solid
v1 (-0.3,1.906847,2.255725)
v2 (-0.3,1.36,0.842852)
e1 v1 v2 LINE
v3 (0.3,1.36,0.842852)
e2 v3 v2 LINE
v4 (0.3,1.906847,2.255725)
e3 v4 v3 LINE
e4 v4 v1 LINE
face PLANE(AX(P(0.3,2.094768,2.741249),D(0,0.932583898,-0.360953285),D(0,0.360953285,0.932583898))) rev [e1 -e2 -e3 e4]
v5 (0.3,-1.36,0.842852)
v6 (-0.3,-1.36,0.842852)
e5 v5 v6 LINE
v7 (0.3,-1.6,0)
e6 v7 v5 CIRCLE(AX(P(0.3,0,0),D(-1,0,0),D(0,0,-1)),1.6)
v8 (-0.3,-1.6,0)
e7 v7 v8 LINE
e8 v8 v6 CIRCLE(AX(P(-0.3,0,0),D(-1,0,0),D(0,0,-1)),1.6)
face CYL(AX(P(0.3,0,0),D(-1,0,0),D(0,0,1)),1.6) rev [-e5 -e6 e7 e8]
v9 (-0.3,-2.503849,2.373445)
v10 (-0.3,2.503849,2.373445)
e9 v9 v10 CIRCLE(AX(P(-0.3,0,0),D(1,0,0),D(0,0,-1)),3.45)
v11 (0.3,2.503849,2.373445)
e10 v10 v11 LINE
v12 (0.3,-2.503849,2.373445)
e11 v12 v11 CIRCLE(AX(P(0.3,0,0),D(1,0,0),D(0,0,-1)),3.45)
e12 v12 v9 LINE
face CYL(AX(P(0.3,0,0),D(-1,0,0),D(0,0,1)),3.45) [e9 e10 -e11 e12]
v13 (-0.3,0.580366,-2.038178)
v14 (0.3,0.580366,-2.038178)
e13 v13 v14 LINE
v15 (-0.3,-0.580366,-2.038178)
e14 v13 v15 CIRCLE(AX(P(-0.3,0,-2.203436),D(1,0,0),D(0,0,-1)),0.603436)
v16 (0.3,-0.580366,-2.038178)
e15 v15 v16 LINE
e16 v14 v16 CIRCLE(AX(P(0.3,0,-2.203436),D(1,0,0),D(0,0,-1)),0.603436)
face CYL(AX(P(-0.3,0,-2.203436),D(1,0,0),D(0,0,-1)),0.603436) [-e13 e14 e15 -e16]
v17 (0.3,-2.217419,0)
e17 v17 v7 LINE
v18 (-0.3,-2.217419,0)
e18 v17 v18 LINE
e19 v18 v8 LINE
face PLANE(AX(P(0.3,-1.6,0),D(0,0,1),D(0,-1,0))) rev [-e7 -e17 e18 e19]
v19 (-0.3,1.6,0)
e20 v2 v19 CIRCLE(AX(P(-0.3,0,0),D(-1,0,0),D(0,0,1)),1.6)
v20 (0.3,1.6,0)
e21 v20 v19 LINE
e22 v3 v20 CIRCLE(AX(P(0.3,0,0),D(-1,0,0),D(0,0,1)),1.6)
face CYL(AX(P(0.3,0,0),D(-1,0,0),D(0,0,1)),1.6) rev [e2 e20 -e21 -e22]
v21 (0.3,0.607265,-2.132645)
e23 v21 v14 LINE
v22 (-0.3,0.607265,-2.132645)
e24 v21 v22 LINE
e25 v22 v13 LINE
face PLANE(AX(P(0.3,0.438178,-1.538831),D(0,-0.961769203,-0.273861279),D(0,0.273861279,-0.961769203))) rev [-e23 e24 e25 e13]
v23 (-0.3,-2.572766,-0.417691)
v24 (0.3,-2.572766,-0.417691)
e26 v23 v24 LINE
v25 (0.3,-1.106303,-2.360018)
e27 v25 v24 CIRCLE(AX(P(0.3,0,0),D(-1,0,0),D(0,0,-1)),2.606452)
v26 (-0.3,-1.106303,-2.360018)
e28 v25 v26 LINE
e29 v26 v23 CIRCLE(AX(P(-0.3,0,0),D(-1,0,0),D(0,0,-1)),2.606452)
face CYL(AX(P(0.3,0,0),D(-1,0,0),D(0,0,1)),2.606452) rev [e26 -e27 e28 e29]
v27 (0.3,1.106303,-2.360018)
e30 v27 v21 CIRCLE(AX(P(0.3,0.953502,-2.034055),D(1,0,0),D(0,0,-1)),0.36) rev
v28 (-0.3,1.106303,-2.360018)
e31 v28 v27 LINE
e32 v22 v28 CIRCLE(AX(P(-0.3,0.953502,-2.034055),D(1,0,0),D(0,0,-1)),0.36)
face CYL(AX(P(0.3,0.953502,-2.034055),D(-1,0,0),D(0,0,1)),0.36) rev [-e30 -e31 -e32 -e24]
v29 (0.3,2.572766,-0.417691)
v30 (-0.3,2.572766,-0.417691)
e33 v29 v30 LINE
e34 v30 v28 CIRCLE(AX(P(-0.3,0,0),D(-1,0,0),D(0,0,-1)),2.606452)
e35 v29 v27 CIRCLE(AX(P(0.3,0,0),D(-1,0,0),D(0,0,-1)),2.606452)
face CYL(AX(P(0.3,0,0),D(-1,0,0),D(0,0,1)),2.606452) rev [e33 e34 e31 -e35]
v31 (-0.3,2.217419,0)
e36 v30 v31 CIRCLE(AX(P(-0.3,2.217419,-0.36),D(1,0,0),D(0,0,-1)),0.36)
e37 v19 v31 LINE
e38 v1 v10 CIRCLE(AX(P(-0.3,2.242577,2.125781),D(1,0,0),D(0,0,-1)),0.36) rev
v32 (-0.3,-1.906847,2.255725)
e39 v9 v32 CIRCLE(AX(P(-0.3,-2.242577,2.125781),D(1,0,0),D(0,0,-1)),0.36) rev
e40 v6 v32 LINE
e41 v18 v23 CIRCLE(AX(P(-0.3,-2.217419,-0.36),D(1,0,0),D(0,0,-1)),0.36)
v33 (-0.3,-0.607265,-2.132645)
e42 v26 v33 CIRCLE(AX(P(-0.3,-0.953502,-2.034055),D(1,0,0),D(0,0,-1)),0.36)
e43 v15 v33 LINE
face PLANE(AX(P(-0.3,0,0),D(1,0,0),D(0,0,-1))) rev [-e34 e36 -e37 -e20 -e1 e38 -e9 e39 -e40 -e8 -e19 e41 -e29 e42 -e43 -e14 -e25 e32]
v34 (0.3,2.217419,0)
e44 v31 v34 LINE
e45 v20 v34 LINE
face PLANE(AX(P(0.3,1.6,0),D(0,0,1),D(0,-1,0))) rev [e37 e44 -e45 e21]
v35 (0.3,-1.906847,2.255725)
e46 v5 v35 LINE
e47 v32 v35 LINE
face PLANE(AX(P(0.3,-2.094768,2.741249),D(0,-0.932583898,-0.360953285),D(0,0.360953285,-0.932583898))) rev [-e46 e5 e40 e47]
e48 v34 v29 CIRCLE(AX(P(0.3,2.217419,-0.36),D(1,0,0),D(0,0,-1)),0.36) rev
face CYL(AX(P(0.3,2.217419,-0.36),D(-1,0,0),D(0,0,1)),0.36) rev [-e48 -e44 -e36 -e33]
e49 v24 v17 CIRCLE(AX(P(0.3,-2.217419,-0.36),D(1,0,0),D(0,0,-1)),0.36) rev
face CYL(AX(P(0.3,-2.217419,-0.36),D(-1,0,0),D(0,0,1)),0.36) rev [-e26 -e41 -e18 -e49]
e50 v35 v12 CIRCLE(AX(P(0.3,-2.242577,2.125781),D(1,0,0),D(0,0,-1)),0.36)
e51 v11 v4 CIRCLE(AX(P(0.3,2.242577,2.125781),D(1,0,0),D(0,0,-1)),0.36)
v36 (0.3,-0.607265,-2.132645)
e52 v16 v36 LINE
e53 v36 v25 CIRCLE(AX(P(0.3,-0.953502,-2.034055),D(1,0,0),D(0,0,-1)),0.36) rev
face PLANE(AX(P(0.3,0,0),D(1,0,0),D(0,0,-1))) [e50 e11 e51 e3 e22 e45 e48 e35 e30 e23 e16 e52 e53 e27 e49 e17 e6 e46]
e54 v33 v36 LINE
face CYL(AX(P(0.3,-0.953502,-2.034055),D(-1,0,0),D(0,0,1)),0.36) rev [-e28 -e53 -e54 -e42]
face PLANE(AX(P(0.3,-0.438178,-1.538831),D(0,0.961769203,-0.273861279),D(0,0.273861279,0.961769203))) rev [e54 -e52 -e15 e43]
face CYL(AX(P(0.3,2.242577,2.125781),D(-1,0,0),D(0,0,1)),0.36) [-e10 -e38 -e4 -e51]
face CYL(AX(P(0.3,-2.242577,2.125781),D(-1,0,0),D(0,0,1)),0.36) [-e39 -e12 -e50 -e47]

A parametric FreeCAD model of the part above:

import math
import FreeCAD as App
import Part
import Sketcher
from FreeCAD import Vector
Q = App.Units.Quantity


def edges_at(feature, points):
    """Names of the edges that pass closest to the given points."""
    edges = feature.Shape.Edges
    near = lambda p: min(range(len(edges)), key=lambda i: edges[i].distToShape(Part.Vertex(*p))[0])
    return sorted({f"Edge{near(p) + 1}" for p in points})

doc = App.newDocument("Part")
body = doc.addObject("PartDesign::Body", "Body")

sketch1 = body.newObject("Sketcher::SketchObject", "Sketch")
sketch1.AttachmentSupport = (doc.getObject("YZ_Plane"), [""])
sketch1.MapMode = "FlatFace"
sketch1.addGeometry([
    Part.LineSegment(Vector(-1.4, 0.8, 0), Vector(-2.1, 2.7, 0)),
    Part.ArcOfCircle(Part.Circle(Vector(0, 0, 0), Vector(0, 0, 1), 3.5), math.radians(127), math.radians(413)),
    Part.LineSegment(Vector(2.1, 2.7, 0), Vector(1.4, 0.8, 0)),
    Part.ArcOfCircle(Part.Circle(Vector(0, 0, 0), Vector(0, 0, 1), 1.6), math.radians(0), math.radians(32)),
    Part.LineSegment(Vector(1.6, 0, 0), Vector(2.6, 0, 0)),
    Part.ArcOfCircle(Part.Circle(Vector(0, 0, 0), Vector(0, 0, 1), 2.6), math.radians(-74), math.radians(0)),
    Part.LineSegment(Vector(0.7, -2.5, 0), Vector(0.4, -1.5, 0)),
    Part.ArcOfCircle(Part.Circle(Vector(0, 0, 0), Vector(0, 0, 1), 1.6), math.radians(-106), math.radians(-74)),
    Part.LineSegment(Vector(-0.4, -1.5, 0), Vector(-0.7, -2.5, 0)),
    Part.ArcOfCircle(Part.Circle(Vector(0, 0, 0), Vector(0, 0, 1), 2.6), math.radians(-180), math.radians(-106)),
    Part.LineSegment(Vector(-2.6, 0, 0), Vector(-1.6, 0, 0)),
    Part.ArcOfCircle(Part.Circle(Vector(0, 0, 0), Vector(0, 0, 1), 1.6), math.radians(148), math.radians(180)),
], False)
sketch1.addConstraint([
    Sketcher.Constraint("Coincident", 0, 2, 1, 1),
    Sketcher.Constraint("Coincident", 1, 2, 2, 1),
    Sketcher.Constraint("Coincident", 2, 2, 3, 2),
    Sketcher.Constraint("Coincident", 3, 1, 4, 1),
    Sketcher.Constraint("Coincident", 4, 2, 5, 2),
    Sketcher.Constraint("Coincident", 5, 1, 6, 1),
    Sketcher.Constraint("Coincident", 6, 2, 7, 2),
    Sketcher.Constraint("Coincident", 7, 1, 8, 1),
    Sketcher.Constraint("Coincident", 8, 2, 9, 2),
    Sketcher.Constraint("Coincident", 9, 1, 10, 1),
    Sketcher.Constraint("Coincident", 10, 2, 11, 2),
    Sketcher.Constraint("Coincident", 11, 1, 0, 1),
    Sketcher.Constraint("Horizontal", 4),
    Sketcher.Constraint("Horizontal", 10),
    Sketcher.Constraint("Coincident", 1, 3, -1, 1),
    Sketcher.Constraint("Coincident", 3, 3, -1, 1),
    Sketcher.Constraint("Coincident", 5, 3, -1, 1),
    Sketcher.Constraint("Coincident", 7, 3, -1, 1),
    Sketcher.Constraint("Coincident", 9, 3, -1, 1),
    Sketcher.Constraint("Coincident", 11, 3, -1, 1),
    Sketcher.Constraint("Equal", 3, 7),
    Sketcher.Constraint("Equal", 5, 9),
    Sketcher.Constraint("Equal", 7, 11),
    Sketcher.Constraint("PointOnObject", 3, 1, -1),
    Sketcher.Constraint("PointOnObject", 9, 1, -1),
    Sketcher.Constraint("Horizontal", 0, 2, 1, 2),
    Sketcher.Constraint("Horizontal", 6, 2, 7, 1),
    Sketcher.Constraint("Horizontal", 5, 1, 8, 2),
    Sketcher.Constraint("Horizontal", 2, 2, 11, 1),
    Sketcher.Constraint("Radius", 3, Q("1.6 mm")),
    Sketcher.Constraint("Radius", 1, Q("3.45 mm")),
    Sketcher.Constraint("DistanceX", -1, 1, 2, 2, Q("1.36 mm")),
    Sketcher.Constraint("Radius", 5, Q("2.606452 mm")),
    Sketcher.Constraint("Distance", 0, Q("2.035631 mm")),
    Sketcher.Constraint("DistanceX", -1, 1, 6, 2, Q("0.438178 mm")),
    Sketcher.Constraint("DistanceX", 6, 2, 5, 1, Q("0.275628 mm")),
])
pad1 = body.newObject("PartDesign::Pad", "Pad")
pad1.Profile = sketch1
pad1.Length = 0.6
pad1.Midplane = True
doc.recompute()

fillet = body.newObject("PartDesign::Fillet", "Fillet")
fillet.Base = (pad1, edges_at(pad1, [
    (0, -2.095, 2.741),
    (0, -2.606, 0),
    (0, -0.714, -2.507),
    (0, 0.714, -2.507),
    (0, 2.606, 0),
    (0, 2.095, 2.741),
]))
fillet.Radius = 0.36

sketch2 = body.newObject("Sketcher::SketchObject", "Sketch001")
sketch2.AttachmentSupport = (doc.getObject("YZ_Plane"), [""])
sketch2.MapMode = "FlatFace"
sketch2.addGeometry([
    Part.ArcOfCircle(Part.Circle(Vector(0, 0, 0), Vector(0, 0, 1), 1.6), math.radians(-90), math.radians(-74.11)),
    Part.ArcOfCircle(Part.Circle(Vector(0, -2.2, 0), Vector(0, 0, 1), 0.6), math.radians(16), math.radians(90)),
    Part.LineSegment(Vector(0.58, -2.04, 0), Vector(0.44, -1.54, 0)),
    Part.ArcOfCircle(Part.Circle(Vector(0, 0, 0), Vector(0, 0, 1), 1.6), math.radians(-105.89), math.radians(-90)),
    Part.LineSegment(Vector(-0.44, -1.54, 0), Vector(-0.58, -2.04, 0)),
    Part.ArcOfCircle(Part.Circle(Vector(0, -2.2, 0), Vector(0, 0, 1), 0.6), math.radians(90), math.radians(164)),
], False)
sketch2.addConstraint([
    Sketcher.Constraint("Tangent", 0, 1, 1, 2),
    Sketcher.Constraint("Tangent", 1, 1, 2, 1),
    Sketcher.Constraint("Coincident", 2, 2, 0, 2),
    Sketcher.Constraint("Coincident", 3, 1, 4, 1),
    Sketcher.Constraint("Tangent", 4, 2, 5, 2),
    Sketcher.Constraint("Tangent", 5, 1, 3, 2),
    Sketcher.Constraint("Coincident", 0, 3, -1, 1),
    Sketcher.Constraint("Coincident", 3, 3, -1, 1),
    Sketcher.Constraint("Coincident", 5, 3, 1, 3),
    Sketcher.Constraint("Equal", 0, 3),
    Sketcher.Constraint("Symmetric", 1, 1, 4, 2, -2),
    Sketcher.Constraint("Radius", 0, Q("1.6 mm")),
    Sketcher.Constraint("Radius", 1, Q("0.603436 mm")),
    Sketcher.Constraint("DistanceY", 1, 1, -1, 1, Q("2.038178 mm")),
])
pocket1 = body.newObject("PartDesign::Pocket", "Pocket")
pocket1.Profile = sketch2
pocket1.Type = "ThroughAll"
pocket1.Midplane = True

doc.recompute()
